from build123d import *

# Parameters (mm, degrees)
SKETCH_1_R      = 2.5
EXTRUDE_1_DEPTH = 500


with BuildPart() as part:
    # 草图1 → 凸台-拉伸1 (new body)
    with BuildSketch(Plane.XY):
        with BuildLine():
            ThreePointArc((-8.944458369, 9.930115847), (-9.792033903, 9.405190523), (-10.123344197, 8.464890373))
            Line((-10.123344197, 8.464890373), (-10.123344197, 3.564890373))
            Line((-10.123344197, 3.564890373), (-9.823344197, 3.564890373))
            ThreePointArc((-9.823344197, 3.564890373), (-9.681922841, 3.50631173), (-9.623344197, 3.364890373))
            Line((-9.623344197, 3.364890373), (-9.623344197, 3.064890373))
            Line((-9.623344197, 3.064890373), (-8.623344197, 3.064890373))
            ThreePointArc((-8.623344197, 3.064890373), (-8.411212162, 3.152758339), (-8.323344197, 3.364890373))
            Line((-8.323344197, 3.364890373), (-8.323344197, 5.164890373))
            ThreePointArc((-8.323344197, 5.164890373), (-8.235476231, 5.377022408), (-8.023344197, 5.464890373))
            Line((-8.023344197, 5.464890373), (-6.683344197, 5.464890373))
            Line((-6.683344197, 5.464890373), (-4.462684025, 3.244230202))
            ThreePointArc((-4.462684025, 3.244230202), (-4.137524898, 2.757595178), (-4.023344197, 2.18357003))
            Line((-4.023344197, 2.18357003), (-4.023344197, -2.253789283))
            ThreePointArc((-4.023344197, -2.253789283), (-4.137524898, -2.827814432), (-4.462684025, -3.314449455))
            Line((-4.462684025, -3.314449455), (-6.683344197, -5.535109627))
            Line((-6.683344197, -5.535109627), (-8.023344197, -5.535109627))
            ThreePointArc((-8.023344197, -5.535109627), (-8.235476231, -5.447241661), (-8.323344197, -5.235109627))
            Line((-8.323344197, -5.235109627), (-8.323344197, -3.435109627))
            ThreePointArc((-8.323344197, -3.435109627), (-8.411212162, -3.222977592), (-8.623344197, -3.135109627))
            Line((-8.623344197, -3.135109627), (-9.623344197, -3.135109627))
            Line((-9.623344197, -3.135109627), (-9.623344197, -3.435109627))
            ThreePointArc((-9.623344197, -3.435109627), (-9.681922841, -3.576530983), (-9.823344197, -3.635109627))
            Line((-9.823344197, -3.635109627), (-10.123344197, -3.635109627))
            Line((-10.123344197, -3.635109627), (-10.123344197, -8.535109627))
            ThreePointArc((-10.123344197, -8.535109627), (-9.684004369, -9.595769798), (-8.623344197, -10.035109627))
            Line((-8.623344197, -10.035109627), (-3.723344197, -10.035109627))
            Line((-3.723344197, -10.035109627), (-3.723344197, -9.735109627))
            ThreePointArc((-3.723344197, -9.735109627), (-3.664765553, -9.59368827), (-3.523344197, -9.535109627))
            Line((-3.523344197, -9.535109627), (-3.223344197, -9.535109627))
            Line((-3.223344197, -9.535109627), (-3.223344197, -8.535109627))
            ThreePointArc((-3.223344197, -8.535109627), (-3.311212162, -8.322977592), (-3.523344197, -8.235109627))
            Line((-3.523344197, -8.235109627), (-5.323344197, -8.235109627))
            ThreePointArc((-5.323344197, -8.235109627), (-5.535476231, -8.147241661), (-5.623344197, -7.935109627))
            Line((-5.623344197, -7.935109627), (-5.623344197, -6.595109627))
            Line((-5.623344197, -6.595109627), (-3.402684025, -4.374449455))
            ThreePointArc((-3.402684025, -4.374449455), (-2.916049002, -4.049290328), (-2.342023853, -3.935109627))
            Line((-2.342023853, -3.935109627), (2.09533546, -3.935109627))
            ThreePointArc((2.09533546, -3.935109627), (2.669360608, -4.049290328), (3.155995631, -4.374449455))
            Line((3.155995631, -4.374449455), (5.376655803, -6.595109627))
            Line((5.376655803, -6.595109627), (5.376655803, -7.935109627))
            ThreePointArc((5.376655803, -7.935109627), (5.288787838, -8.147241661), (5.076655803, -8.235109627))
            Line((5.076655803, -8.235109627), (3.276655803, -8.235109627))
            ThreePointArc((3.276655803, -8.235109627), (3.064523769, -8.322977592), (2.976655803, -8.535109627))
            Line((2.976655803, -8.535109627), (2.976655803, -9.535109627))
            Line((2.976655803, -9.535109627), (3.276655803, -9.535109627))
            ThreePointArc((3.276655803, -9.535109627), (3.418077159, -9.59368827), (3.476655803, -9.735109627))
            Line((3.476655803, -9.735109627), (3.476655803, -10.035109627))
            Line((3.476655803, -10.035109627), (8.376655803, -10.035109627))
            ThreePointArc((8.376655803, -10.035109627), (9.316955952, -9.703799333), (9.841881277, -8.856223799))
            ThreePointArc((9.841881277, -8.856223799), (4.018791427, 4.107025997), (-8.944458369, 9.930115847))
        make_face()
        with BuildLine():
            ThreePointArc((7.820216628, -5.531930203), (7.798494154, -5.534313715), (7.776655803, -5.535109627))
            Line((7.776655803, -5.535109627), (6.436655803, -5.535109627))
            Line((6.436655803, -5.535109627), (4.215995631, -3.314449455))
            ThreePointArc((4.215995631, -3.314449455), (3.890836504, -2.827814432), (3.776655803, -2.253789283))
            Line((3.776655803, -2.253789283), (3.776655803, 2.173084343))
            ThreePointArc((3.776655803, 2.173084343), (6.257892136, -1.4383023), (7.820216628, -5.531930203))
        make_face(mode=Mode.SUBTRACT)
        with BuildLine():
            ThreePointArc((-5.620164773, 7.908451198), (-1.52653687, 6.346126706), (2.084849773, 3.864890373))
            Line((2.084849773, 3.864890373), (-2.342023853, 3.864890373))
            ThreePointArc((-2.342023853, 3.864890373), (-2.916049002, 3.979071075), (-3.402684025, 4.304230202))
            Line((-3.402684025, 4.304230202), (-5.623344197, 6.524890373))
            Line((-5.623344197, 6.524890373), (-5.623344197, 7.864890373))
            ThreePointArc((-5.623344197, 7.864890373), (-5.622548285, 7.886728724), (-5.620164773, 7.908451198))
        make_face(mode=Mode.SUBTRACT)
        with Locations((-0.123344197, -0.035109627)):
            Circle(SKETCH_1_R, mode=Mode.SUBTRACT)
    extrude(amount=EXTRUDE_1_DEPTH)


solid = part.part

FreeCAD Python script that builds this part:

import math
import FreeCAD as App
import Part
import Sketcher
from FreeCAD import Vector
Q = App.Units.Quantity

doc = App.newDocument("Part")
body = doc.addObject("PartDesign::Body", "Body")

sketch1 = body.newObject("Sketcher::SketchObject", "Sketch")
sketch1.AttachmentSupport = (doc.getObject("XY_Plane"), [""])
sketch1.MapMode = "FlatFace"
sketch1.addGeometry([
    Part.ArcOfCircle(Part.Circle(Vector(-8.623344, 8.46489, 0), Vector(0, 0, 1), 1.5), math.radians(102.361331), math.radians(180)),
    Part.LineSegment(Vector(-10.123344, 8.46489, 0), Vector(-10.123344, 3.56489, 0)),
    Part.LineSegment(Vector(-10.123344, 3.56489, 0), Vector(-9.823344, 3.56489, 0)),
    Part.ArcOfCircle(Part.Circle(Vector(-9.823344, 3.36489, 0), Vector(0, 0, 1), 0.2), math.radians(0), math.radians(90)),
    Part.LineSegment(Vector(-9.623344, 3.36489, 0), Vector(-9.623344, 3.06489, 0)),
    Part.LineSegment(Vector(-9.623344, 3.06489, 0), Vector(-8.623344, 3.06489, 0)),
    Part.ArcOfCircle(Part.Circle(Vector(-8.623344, 3.36489, 0), Vector(0, 0, 1), 0.3), math.radians(-90), math.radians(0)),
    Part.LineSegment(Vector(-8.323344, 3.36489, 0), Vector(-8.323344, 5.16489, 0)),
    Part.ArcOfCircle(Part.Circle(Vector(-8.023344, 5.16489, 0), Vector(0, 0, 1), 0.3), math.radians(90), math.radians(180)),
    Part.LineSegment(Vector(-8.023344, 5.46489, 0), Vector(-6.683344, 5.46489, 0)),
    Part.LineSegment(Vector(-6.683344, 5.46489, 0), Vector(-4.462684, 3.24423, 0)),
    Part.ArcOfCircle(Part.Circle(Vector(-5.523344, 2.18357, 0), Vector(0, 0, 1), 1.5), math.radians(0), math.radians(45)),
    Part.LineSegment(Vector(-4.023344, 2.18357, 0), Vector(-4.023344, -2.253789, 0)),
    Part.ArcOfCircle(Part.Circle(Vector(-5.523344, -2.253789, 0), Vector(0, 0, 1), 1.5), math.radians(-45), math.radians(0)),
    Part.LineSegment(Vector(-4.462684, -3.314449, 0), Vector(-6.683344, -5.53511, 0)),
    Part.LineSegment(Vector(-6.683344, -5.53511, 0), Vector(-8.023344, -5.53511, 0)),
    Part.ArcOfCircle(Part.Circle(Vector(-8.023344, -5.23511, 0), Vector(0, 0, 1), 0.3), math.radians(-180), math.radians(-90)),
    Part.LineSegment(Vector(-8.323344, -5.23511, 0), Vector(-8.323344, -3.43511, 0)),
    Part.ArcOfCircle(Part.Circle(Vector(-8.623344, -3.43511, 0), Vector(0, 0, 1), 0.3), math.radians(0), math.radians(90)),
    Part.LineSegment(Vector(-8.623344, -3.13511, 0), Vector(-9.623344, -3.13511, 0)),
    Part.LineSegment(Vector(-9.623344, -3.13511, 0), Vector(-9.623344, -3.43511, 0)),
    Part.ArcOfCircle(Part.Circle(Vector(-9.823344, -3.43511, 0), Vector(0, 0, 1), 0.2), math.radians(-90), math.radians(0)),
    Part.LineSegment(Vector(-9.823344, -3.63511, 0), Vector(-10.123344, -3.63511, 0)),
    Part.LineSegment(Vector(-10.123344, -3.63511, 0), Vector(-10.123344, -8.53511, 0)),
    Part.ArcOfCircle(Part.Circle(Vector(-8.623344, -8.53511, 0), Vector(0, 0, 1), 1.5), math.radians(-180), math.radians(-90)),
    Part.LineSegment(Vector(-8.623344, -10.03511, 0), Vector(-3.723344, -10.03511, 0)),
    Part.LineSegment(Vector(-3.723344, -10.03511, 0), Vector(-3.723344, -9.73511, 0)),
    Part.ArcOfCircle(Part.Circle(Vector(-3.523344, -9.73511, 0), Vector(0, 0, 1), 0.2), math.radians(90), math.radians(180)),
    Part.LineSegment(Vector(-3.523344, -9.53511, 0), Vector(-3.223344, -9.53511, 0)),
    Part.LineSegment(Vector(-3.223344, -9.53511, 0), Vector(-3.223344, -8.53511, 0)),
    Part.ArcOfCircle(Part.Circle(Vector(-3.523344, -8.53511, 0), Vector(0, 0, 1), 0.3), math.radians(0), math.radians(90)),
    Part.LineSegment(Vector(-3.523344, -8.23511, 0), Vector(-5.323344, -8.23511, 0)),
    Part.ArcOfCircle(Part.Circle(Vector(-5.323344, -7.93511, 0), Vector(0, 0, 1), 0.3), math.radians(-180), math.radians(-90)),
    Part.LineSegment(Vector(-5.623344, -7.93511, 0), Vector(-5.623344, -6.59511, 0)),
    Part.LineSegment(Vector(-5.623344, -6.59511, 0), Vector(-3.402684, -4.374449, 0)),
    Part.ArcOfCircle(Part.Circle(Vector(-2.342024, -5.43511, 0), Vector(0, 0, 1), 1.5), math.radians(90), math.radians(135)),
    Part.LineSegment(Vector(-2.342024, -3.93511, 0), Vector(2.095335, -3.93511, 0)),
    Part.ArcOfCircle(Part.Circle(Vector(2.095335, -5.43511, 0), Vector(0, 0, 1), 1.5), math.radians(45), math.radians(90)),
    Part.LineSegment(Vector(3.155996, -4.374449, 0), Vector(5.376656, -6.59511, 0)),
    Part.LineSegment(Vector(5.376656, -6.59511, 0), Vector(5.376656, -7.93511, 0)),
    Part.ArcOfCircle(Part.Circle(Vector(5.076656, -7.93511, 0), Vector(0, 0, 1), 0.3), math.radians(-90), math.radians(0)),
    Part.LineSegment(Vector(5.076656, -8.23511, 0), Vector(3.276656, -8.23511, 0)),
    Part.ArcOfCircle(Part.Circle(Vector(3.276656, -8.53511, 0), Vector(0, 0, 1), 0.3), math.radians(90), math.radians(180)),
    Part.LineSegment(Vector(2.976656, -8.53511, 0), Vector(2.976656, -9.53511, 0)),
    Part.LineSegment(Vector(2.976656, -9.53511, 0), Vector(3.276656, -9.53511, 0)),
    Part.ArcOfCircle(Part.Circle(Vector(3.276656, -9.73511, 0), Vector(0, 0, 1), 0.2), math.radians(0), math.radians(90)),
    Part.LineSegment(Vector(3.476656, -9.73511, 0), Vector(3.476656, -10.03511, 0)),
    Part.LineSegment(Vector(3.476656, -10.03511, 0), Vector(8.376656, -10.03511, 0)),
    Part.ArcOfCircle(Part.Circle(Vector(8.376656, -8.53511, 0), Vector(0, 0, 1), 1.5), math.radians(-90), math.radians(-12.361331)),
    Part.ArcOfCircle(Part.Circle(Vector(-10.123344, -10.03511, 0), Vector(0, 0, 1), 20), math.radians(3.379218), math.radians(86.620782)),
    Part.Circle(Vector(-0.123344, -0.03511, 0), Vector(0, 0, 1), 2.5),
    Part.ArcOfCircle(Part.Circle(Vector(-10.123344, -10.03511, 0), Vector(0, 0, 1), 18.5), math.radians(14.088191), math.radians(41.292428)),
    Part.ArcOfCircle(Part.Circle(Vector(7.776656, -5.23511, 0), Vector(0, 0, 1), 0.3), math.radians(-89.999999), math.radians(-81.65098)),
    Part.LineSegment(Vector(7.776656, -5.53511, 0), Vector(6.436656, -5.53511, 0)),
    Part.LineSegment(Vector(6.436656, -5.53511, 0), Vector(4.215996, -3.314449, 0)),
    Part.ArcOfCircle(Part.Circle(Vector(5.276656, -2.253789, 0), Vector(0, 0, 1), 1.5), math.radians(180), math.radians(225)),
    Part.LineSegment(Vector(3.776656, -2.253789, 0), Vector(3.776656, 2.173084, 0)),
    Part.ArcOfCircle(Part.Circle(Vector(-5.323344, 7.86489, 0), Vector(0, 0, 1), 0.3), math.radians(171.65098), math.radians(179.999999)),
    Part.ArcOfCircle(Part.Circle(Vector(-10.123344, -10.03511, 0), Vector(0, 0, 1), 18.5), math.radians(48.707572), math.radians(75.911809)),
    Part.LineSegment(Vector(2.08485, 3.86489, 0), Vector(-2.342024, 3.86489, 0)),
    Part.ArcOfCircle(Part.Circle(Vector(-2.342024, 5.36489, 0), Vector(0, 0, 1), 1.5), math.radians(-135), math.radians(-90)),
    Part.LineSegment(Vector(-3.402684, 4.30423, 0), Vector(-5.623344, 6.52489, 0)),
    Part.LineSegment(Vector(-5.623344, 6.52489, 0), Vector(-5.623344, 7.86489, 0)),
], False)
sketch1.addConstraint([
    Sketcher.Constraint("Tangent", 0, 2, 1, 1),
    Sketcher.Constraint("Coincident", 1, 2, 2, 1),
    Sketcher.Constraint("Tangent", 2, 2, 3, 2),
    Sketcher.Constraint("Tangent", 3, 1, 4, 1),
    Sketcher.Constraint("Coincident", 4, 2, 5, 1),
    Sketcher.Constraint("Tangent", 5, 2, 6, 1),
    Sketcher.Constraint("Tangent", 6, 2, 7, 1),
    Sketcher.Constraint("Tangent", 7, 2, 8, 2),
    Sketcher.Constraint("Tangent", 8, 1, 9, 1),
    Sketcher.Constraint("Coincident", 9, 2, 10, 1),
    Sketcher.Constraint("Tangent", 10, 2, 11, 2),
    Sketcher.Constraint("Tangent", 11, 1, 12, 1),
    Sketcher.Constraint("Tangent", 12, 2, 13, 2),
    Sketcher.Constraint("Tangent", 13, 1, 14, 1),
    Sketcher.Constraint("Coincident", 14, 2, 15, 1),
    Sketcher.Constraint("Tangent", 15, 2, 16, 2),
    Sketcher.Constraint("Tangent", 16, 1, 17, 1),
    Sketcher.Constraint("Tangent", 17, 2, 18, 1),
    Sketcher.Constraint("Tangent", 18, 2, 19, 1),
    Sketcher.Constraint("Coincident", 19, 2, 20, 1),
    Sketcher.Constraint("Tangent", 20, 2, 21, 2),
    Sketcher.Constraint("Tangent", 21, 1, 22, 1),
    Sketcher.Constraint("Coincident", 22, 2, 23, 1),
    Sketcher.Constraint("Tangent", 23, 2, 24, 1),
    Sketcher.Constraint("Tangent", 24, 2, 25, 1),
    Sketcher.Constraint("Coincident", 25, 2, 26, 1),
    Sketcher.Constraint("Tangent", 26, 2, 27, 2),
    Sketcher.Constraint("Tangent", 27, 1, 28, 1),
    Sketcher.Constraint("Coincident", 28, 2, 29, 1),
    Sketcher.Constraint("Tangent", 29, 2, 30, 1),
    Sketcher.Constraint("Tangent", 30, 2, 31, 1),
    Sketcher.Constraint("Tangent", 31, 2, 32, 2),
    Sketcher.Constraint("Tangent", 32, 1, 33, 1),
    Sketcher.Constraint("Coincident", 33, 2, 34, 1),
    Sketcher.Constraint("Tangent", 34, 2, 35, 2),
    Sketcher.Constraint("Tangent", 35, 1, 36, 1),
    Sketcher.Constraint("Tangent", 36, 2, 37, 2),
    Sketcher.Constraint("Tangent", 37, 1, 38, 1),
    Sketcher.Constraint("Coincident", 38, 2, 39, 1),
    Sketcher.Constraint("Tangent", 39, 2, 40, 2),
    Sketcher.Constraint("Tangent", 40, 1, 41, 1),
    Sketcher.Constraint("Tangent", 41, 2, 42, 1),
    Sketcher.Constraint("Tangent", 42, 2, 43, 1),
    Sketcher.Constraint("Coincident", 43, 2, 44, 1),
    Sketcher.Constraint("Tangent", 44, 2, 45, 2),
    Sketcher.Constraint("Tangent", 45, 1, 46, 1),
    Sketcher.Constraint("Coincident", 46, 2, 47, 1),
    Sketcher.Constraint("Tangent", 47, 2, 48, 1),
    Sketcher.Constraint("Coincident", 48, 2, 49, 1),
    Sketcher.Constraint("Coincident", 49, 2, 0, 1),
    Sketcher.Constraint("Coincident", 51, 1, 52, 2),
    Sketcher.Constraint("Tangent", 52, 1, 53, 1),
    Sketcher.Constraint("Coincident", 53, 2, 54, 1),
    Sketcher.Constraint("Tangent", 54, 2, 55, 2),
    Sketcher.Constraint("Tangent", 55, 1, 56, 1),
    Sketcher.Constraint("Coincident", 56, 2, 51, 2),
    Sketcher.Constraint("Coincident", 57, 1, 58, 2),
    Sketcher.Constraint("Coincident", 58, 1, 59, 1),
    Sketcher.Constraint("Tangent", 59, 2, 60, 2),
    Sketcher.Constraint("Tangent", 60, 1, 61, 1),
    Sketcher.Constraint("Coincident", 61, 2, 62, 1),
    Sketcher.Constraint("Tangent", 62, 2, 57, 2),
    Sketcher.Constraint("Vertical", 1),
    Sketcher.Constraint("Horizontal", 2),
    Sketcher.Constraint("Vertical", 4),
    Sketcher.Constraint("Horizontal", 5),
    Sketcher.Constraint("Vertical", 7),
    Sketcher.Constraint("Horizontal", 9),
    Sketcher.Constraint("Vertical", 12),
    Sketcher.Constraint("Horizontal", 15),
    Sketcher.Constraint("Vertical", 17),
    Sketcher.Constraint("Horizontal", 19),
    Sketcher.Constraint("Vertical", 20),
    Sketcher.Constraint("Horizontal", 22),
    Sketcher.Constraint("Vertical", 23),
    Sketcher.Constraint("Horizontal", 25),
    Sketcher.Constraint("Vertical", 26),
    Sketcher.Constraint("Horizontal", 28),
    Sketcher.Constraint("Vertical", 29),
    Sketcher.Constraint("Horizontal", 31),
    Sketcher.Constraint("Vertical", 33),
    Sketcher.Constraint("Horizontal", 36),
    Sketcher.Constraint("Vertical", 39),
    Sketcher.Constraint("Horizontal", 41),
    Sketcher.Constraint("Vertical", 43),
    Sketcher.Constraint("Horizontal", 44),
    Sketcher.Constraint("Vertical", 46),
    Sketcher.Constraint("Horizontal", 47),
    Sketcher.Constraint("Horizontal", 53),
    Sketcher.Constraint("Vertical", 56),
    Sketcher.Constraint("Horizontal", 59),
    Sketcher.Constraint("Vertical", 62),
    Sketcher.Constraint("Coincident", 51, 3, 49, 3),
    Sketcher.Constraint("Coincident", 58, 3, 49, 3),
    Sketcher.Constraint("Equal", 6, 8),
    Sketcher.Constraint("Equal", 0, 11),
    Sketcher.Constraint("Equal", 11, 13),
    Sketcher.Constraint("Equal", 8, 16),
    Sketcher.Constraint("Equal", 16, 18),
    Sketcher.Constraint("Equal", 3, 21),
    Sketcher.Constraint("Equal", 13, 24),
    Sketcher.Constraint("Equal", 21, 27),
    Sketcher.Constraint("Equal", 18, 30),
    Sketcher.Constraint("Equal", 30, 32),
    Sketcher.Constraint("Equal", 24, 35),
    Sketcher.Constraint("Equal", 35, 37),
    Sketcher.Constraint("Equal", 32, 40),
    Sketcher.Constraint("Equal", 40, 42),
    Sketcher.Constraint("Equal", 27, 45),
    Sketcher.Constraint("Equal", 37, 48),
    Sketcher.Constraint("Equal", 42, 52),
    Sketcher.Constraint("Equal", 48, 55),
    Sketcher.Constraint("Equal", 52, 57),
    Sketcher.Constraint("Equal", 51, 58),
    Sketcher.Constraint("Equal", 55, 60),
    Sketcher.Constraint("Perpendicular", 10, 14),
    Sketcher.Constraint("Parallel", 14, 34),
    Sketcher.Constraint("Perpendicular", 34, 38),
    Sketcher.Constraint("Parallel", 38, 54),
    Sketcher.Constraint("Parallel", 54, 61),
    Sketcher.Constraint("Horizontal", 3, 3, 6, 3),
    Sketcher.Constraint("Horizontal", 18, 3, 21, 3),
    Sketcher.Constraint("Horizontal", 24, 3, 30, 3),
    Sketcher.Constraint("Horizontal", 32, 3, 40, 3),
    Sketcher.Constraint("Horizontal", 27, 3, 45, 3),
    Sketcher.Constraint("Horizontal", 42, 3, 48, 3),
    Sketcher.Constraint("Horizontal", 16, 3, 52, 3),
    Sketcher.Constraint("Horizontal", 13, 3, 55, 3),
    Sketcher.Constraint("Horizontal", 58, 3, 24, 2),
    Sketcher.Constraint("Horizontal", 34, 2, 37, 1),
    Sketcher.Constraint("Horizontal", 33, 2, 38, 2),
    Sketcher.Constraint("Vertical", 0, 3, 6, 3),
    Sketcher.Constraint("Vertical", 8, 3, 16, 3),
    Sketcher.Constraint("Vertical", 3, 3, 21, 3),
    Sketcher.Constraint("Vertical", 18, 3, 24, 3),
    Sketcher.Constraint("Vertical", 27, 3, 30, 3),
    Sketcher.Constraint("Vertical", 42, 3, 45, 3),
    Sketcher.Constraint("Vertical", 32, 3, 57, 3),
    Sketcher.Constraint("Vertical", 35, 3, 60, 3),
    Sketcher.Constraint("Vertical", 58, 3, 0, 2),
    Sketcher.Constraint("Vertical", 9, 2, 14, 2),
    Sketcher.Constraint("Equal", 22, 28),
    Sketcher.Constraint("Equal", 31, 41),
    Sketcher.Constraint("Equal", 25, 47),
    Sketcher.Constraint("Equal", 15, 53),
    Sketcher.Constraint("Equal", 47, 1),
    Sketcher.Constraint("Equal", 41, 7),
    Sketcher.Constraint("Equal", 36, 12),
    Sketcher.Constraint("Equal", 7, 17),
    Sketcher.Constraint("Equal", 1, 23),
    Sketcher.Constraint("Equal", 20, 26),
    Sketcher.Constraint("Equal", 53, 33),
    Sketcher.Constraint("Equal", 59, 56),
    Sketcher.Constraint("Equal", 39, 62),
    Sketcher.Constraint("Equal", 14, 34),
    Sketcher.Constraint("Diameter", 50, Q("5 mm")),
    Sketcher.Constraint("Radius", 49, Q("20 mm")),
    Sketcher.Constraint("Radius", 0, Q("1.5 mm")),
    Sketcher.Constraint("Radius", 3, Q("0.2 mm")),
    Sketcher.Constraint("Radius", 6, Q("0.3 mm")),
    Sketcher.Constraint("Radius", 51, Q("18.5 mm")),
    Sketcher.Constraint("DistanceX", 25, 1, 25, 2, Q("4.9 mm")),
    Sketcher.Constraint("DistanceX", 31, 2, 31, 1, Q("1.8 mm")),
    Sketcher.Constraint("DistanceX", 9, 1, 9, 2, Q("1.34 mm")),
    Sketcher.Constraint("DistanceX", 36, 1, 36, 2, Q("4.437359 mm")),
    Sketcher.Constraint("DistanceX", 59, 2, 59, 1, Q("4.426874 mm")),
    Sketcher.Constraint("DistanceY", -1, 1, 0, 3, Q("8.46489 mm")),
    Sketcher.Constraint("DistanceY", -1, 1, 11, 3, Q("2.18357 mm")),
    Sketcher.Constraint("DistanceY", 50, 3, -1, 1, Q("0.03511 mm")),
    Sketcher.Constraint("DistanceX", -1, 1, 48, 2, Q("9.841881 mm")),
    Sketcher.Constraint("DistanceX", 50, 3, -1, 1, Q("0.123344 mm")),
])
pad1 = body.newObject("PartDesign::Pad", "Pad")
pad1.Profile = sketch1
pad1.Length = 500

doc.recompute()
